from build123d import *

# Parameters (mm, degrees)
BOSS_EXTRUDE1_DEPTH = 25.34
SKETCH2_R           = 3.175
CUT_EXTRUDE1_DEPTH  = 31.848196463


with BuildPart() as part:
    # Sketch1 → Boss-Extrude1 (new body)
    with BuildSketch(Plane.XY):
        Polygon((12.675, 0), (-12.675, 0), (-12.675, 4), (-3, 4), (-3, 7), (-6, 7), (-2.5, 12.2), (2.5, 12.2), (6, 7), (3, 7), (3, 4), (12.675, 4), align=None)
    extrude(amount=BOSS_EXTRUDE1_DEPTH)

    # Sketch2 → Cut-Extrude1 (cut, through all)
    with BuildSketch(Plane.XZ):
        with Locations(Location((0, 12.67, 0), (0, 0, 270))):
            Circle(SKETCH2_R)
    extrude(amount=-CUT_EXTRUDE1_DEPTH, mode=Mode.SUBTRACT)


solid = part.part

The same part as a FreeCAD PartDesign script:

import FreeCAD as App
import Part
import Sketcher

V = App.Vector
Q = App.Units.Quantity

doc = App.newDocument("Part")
body = doc.addObject("PartDesign::Body", "Body")

# Sketch on XY plane
sketch1 = body.newObject("Sketcher::SketchObject", "Sketch")
sketch1.AttachmentSupport = (doc.getObject("XY_Plane"), [""])
sketch1.MapMode = "FlatFace"
sketch1.addGeometry(Part.LineSegment(V(-12.675, 0, 0), V(12.675, 0, 0)), False)
sketch1.addGeometry(Part.LineSegment(V(12.675, 0, 0), V(12.675, 4, 0)), False)
sketch1.addGeometry(Part.LineSegment(V(12.675, 4, 0), V(3, 4, 0)), False)
sketch1.addGeometry(Part.LineSegment(V(3, 4, 0), V(3, 7, 0)), False)
sketch1.addGeometry(Part.LineSegment(V(3, 7, 0), V(6, 7, 0)), False)
sketch1.addGeometry(Part.LineSegment(V(6, 7, 0), V(2.5, 12.2, 0)), False)
sketch1.addGeometry(Part.LineSegment(V(2.5, 12.2, 0), V(-2.5, 12.2, 0)), False)
sketch1.addGeometry(Part.LineSegment(V(-2.5, 12.2, 0), V(-6, 7, 0)), False)
sketch1.addGeometry(Part.LineSegment(V(-6, 7, 0), V(-3, 7, 0)), False)
sketch1.addGeometry(Part.LineSegment(V(-3, 7, 0), V(-3, 4, 0)), False)
sketch1.addGeometry(Part.LineSegment(V(-3, 4, 0), V(-12.675, 4, 0)), False)
sketch1.addGeometry(Part.LineSegment(V(-12.675, 4, 0), V(-12.675, 0, 0)), False)
sketch1.addConstraint(Sketcher.Constraint("Coincident", 0, 2, 1, 1))
sketch1.addConstraint(Sketcher.Constraint("Coincident", 1, 2, 2, 1))
sketch1.addConstraint(Sketcher.Constraint("Coincident", 2, 2, 3, 1))
sketch1.addConstraint(Sketcher.Constraint("Coincident", 3, 2, 4, 1))
sketch1.addConstraint(Sketcher.Constraint("Coincident", 4, 2, 5, 1))
sketch1.addConstraint(Sketcher.Constraint("Coincident", 5, 2, 6, 1))
sketch1.addConstraint(Sketcher.Constraint("Coincident", 6, 2, 7, 1))
sketch1.addConstraint(Sketcher.Constraint("Coincident", 7, 2, 8, 1))
sketch1.addConstraint(Sketcher.Constraint("Coincident", 8, 2, 9, 1))
sketch1.addConstraint(Sketcher.Constraint("Coincident", 9, 2, 10, 1))
sketch1.addConstraint(Sketcher.Constraint("Coincident", 10, 2, 11, 1))
sketch1.addConstraint(Sketcher.Constraint("Coincident", 11, 2, 0, 1))
sketch1.addConstraint(Sketcher.Constraint("Horizontal", 0))
sketch1.addConstraint(Sketcher.Constraint("Vertical", 1))
sketch1.addConstraint(Sketcher.Constraint("Horizontal", 2))
sketch1.addConstraint(Sketcher.Constraint("Vertical", 3))
sketch1.addConstraint(Sketcher.Constraint("Horizontal", 4))
sketch1.addConstraint(Sketcher.Constraint("Horizontal", 6))
sketch1.addConstraint(Sketcher.Constraint("Horizontal", 8))
sketch1.addConstraint(Sketcher.Constraint("Vertical", 9))
sketch1.addConstraint(Sketcher.Constraint("Horizontal", 10))
sketch1.addConstraint(Sketcher.Constraint("Vertical", 11))
sketch1.addConstraint(Sketcher.Constraint("Symmetric", 0, 2, 11, 2, -1, 1))
sketch1.addConstraint(Sketcher.Constraint("Symmetric", 4, 2, 7, 2, -2))
sketch1.addConstraint(Sketcher.Constraint("Symmetric", 2, 2, 9, 2, -2))
sketch1.addConstraint(Sketcher.Constraint("Equal", 8, 3))
sketch1.addConstraint(Sketcher.Constraint("Equal", 5, 7))
sketch1.addConstraint(Sketcher.Constraint("DistanceX", 4, 1, 4, 2, Q("3 mm")))
sketch1.addConstraint(Sketcher.Constraint("DistanceX", 6, 2, 6, 1, Q("5 mm")))
sketch1.addConstraint(Sketcher.Constraint("DistanceY", 1, 1, 1, 2, Q("4 mm")))
sketch1.addConstraint(Sketcher.Constraint("DistanceX", -1, 1, 2, 2, Q("3 mm")))
sketch1.addConstraint(Sketcher.Constraint("DistanceX", 0, 1, 0, 2, Q("25.35 mm")))
sketch1.addConstraint(Sketcher.Constraint("DistanceY", -1, 1, 5, 2, Q("12.2 mm")))
pad1 = body.newObject("PartDesign::Pad", "Pad")
pad1.Profile = sketch1
pad1.Length = 25.34

# Sketch on XZ plane
sketch2 = body.newObject("Sketcher::SketchObject", "Sketch001")
sketch2.AttachmentSupport = (doc.getObject("XZ_Plane"), [""])
sketch2.MapMode = "FlatFace"
sketch2.addGeometry(Part.Circle(V(0, 12.67, 0), V(0, 0, 1), 3.175), False)
sketch2.addConstraint(Sketcher.Constraint("PointOnObject", 0, 3, -2))
sketch2.addConstraint(Sketcher.Constraint("Diameter", 0, Q("6.35 mm")))
sketch2.addConstraint(Sketcher.Constraint("DistanceY", -1, 1, 0, 3, Q("12.67 mm")))
pocket1 = body.newObject("PartDesign::Pocket", "Pocket")
pocket1.Profile = sketch2
pocket1.Type = "ThroughAll"

doc.recompute()
